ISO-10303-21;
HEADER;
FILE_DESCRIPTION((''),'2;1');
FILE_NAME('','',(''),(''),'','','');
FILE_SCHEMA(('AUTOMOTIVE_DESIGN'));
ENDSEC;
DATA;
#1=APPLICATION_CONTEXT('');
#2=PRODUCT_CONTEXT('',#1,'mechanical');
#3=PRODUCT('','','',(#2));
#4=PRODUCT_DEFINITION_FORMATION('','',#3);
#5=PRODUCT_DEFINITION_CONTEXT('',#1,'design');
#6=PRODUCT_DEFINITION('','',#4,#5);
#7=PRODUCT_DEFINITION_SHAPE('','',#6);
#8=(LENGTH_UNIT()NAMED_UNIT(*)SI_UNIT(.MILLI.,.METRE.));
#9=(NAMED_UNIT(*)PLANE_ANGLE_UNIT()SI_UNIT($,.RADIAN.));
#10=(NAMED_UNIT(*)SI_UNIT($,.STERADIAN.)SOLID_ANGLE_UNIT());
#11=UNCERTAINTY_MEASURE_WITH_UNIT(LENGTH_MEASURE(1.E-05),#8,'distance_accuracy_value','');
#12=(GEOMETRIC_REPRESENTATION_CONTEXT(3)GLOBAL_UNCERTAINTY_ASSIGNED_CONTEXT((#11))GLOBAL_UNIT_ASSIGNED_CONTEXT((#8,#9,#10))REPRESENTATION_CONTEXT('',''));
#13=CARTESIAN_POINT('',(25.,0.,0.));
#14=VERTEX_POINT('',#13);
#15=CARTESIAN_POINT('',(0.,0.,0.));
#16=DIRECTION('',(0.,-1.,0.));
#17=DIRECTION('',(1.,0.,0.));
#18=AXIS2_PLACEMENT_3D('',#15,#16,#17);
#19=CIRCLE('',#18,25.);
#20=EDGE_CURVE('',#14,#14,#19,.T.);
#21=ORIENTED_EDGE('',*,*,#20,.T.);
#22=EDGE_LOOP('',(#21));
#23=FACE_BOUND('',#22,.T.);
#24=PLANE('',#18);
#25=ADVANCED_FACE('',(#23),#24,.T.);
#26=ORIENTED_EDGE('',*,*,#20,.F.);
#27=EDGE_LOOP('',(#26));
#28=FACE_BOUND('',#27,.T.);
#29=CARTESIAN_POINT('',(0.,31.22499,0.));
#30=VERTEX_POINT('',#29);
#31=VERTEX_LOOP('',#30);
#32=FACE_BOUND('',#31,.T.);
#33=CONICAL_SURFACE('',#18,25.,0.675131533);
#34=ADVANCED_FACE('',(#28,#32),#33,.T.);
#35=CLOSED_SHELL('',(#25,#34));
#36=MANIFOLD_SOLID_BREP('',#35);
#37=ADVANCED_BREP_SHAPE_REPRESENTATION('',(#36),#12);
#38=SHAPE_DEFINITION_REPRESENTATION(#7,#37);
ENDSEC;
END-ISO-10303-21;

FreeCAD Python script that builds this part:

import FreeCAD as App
import Part
import Sketcher

V = App.Vector
Q = App.Units.Quantity

doc = App.newDocument("Part")
body = doc.addObject("PartDesign::Body", "Body")

sketch1 = doc.addObject("Sketcher::SketchObject", "Sketch")
body.addObject(sketch1)
sketch1.AttachmentSupport = (doc.XY_Plane, [""])
sketch1.MapMode = "FlatFace"
sketch1.addGeometry([
    Part.LineSegment(V(0, 0, 0), V(25, 0, 0)),
    Part.LineSegment(V(25, 0, 0), V(0, 31.22499, 0)),
    Part.LineSegment(V(0, 31.22499, 0), V(0, 0, 0)),
], False)
sketch1.addConstraint([
    Sketcher.Constraint("Coincident", 0, 2, 1, 1),
    Sketcher.Constraint("Coincident", 1, 2, 2, 1),
    Sketcher.Constraint("Coincident", 2, 2, 0, 1),
    Sketcher.Constraint("Horizontal", 0),
    Sketcher.Constraint("Vertical", 2),
    Sketcher.Constraint("Coincident", 2, 2, -1, 1),
    Sketcher.Constraint("DistanceX", 0, 1, 0, 2, Q("25 mm")),
    Sketcher.Constraint("Distance", 1, Q("40 mm")),
])
revolution = doc.addObject("PartDesign::Revolution", "Revolution")
body.addObject(revolution)
revolution.Profile = sketch1
revolution.ReferenceAxis = (sketch1, ["V_Axis"])
revolution.Angle = 360

doc.recompute()
